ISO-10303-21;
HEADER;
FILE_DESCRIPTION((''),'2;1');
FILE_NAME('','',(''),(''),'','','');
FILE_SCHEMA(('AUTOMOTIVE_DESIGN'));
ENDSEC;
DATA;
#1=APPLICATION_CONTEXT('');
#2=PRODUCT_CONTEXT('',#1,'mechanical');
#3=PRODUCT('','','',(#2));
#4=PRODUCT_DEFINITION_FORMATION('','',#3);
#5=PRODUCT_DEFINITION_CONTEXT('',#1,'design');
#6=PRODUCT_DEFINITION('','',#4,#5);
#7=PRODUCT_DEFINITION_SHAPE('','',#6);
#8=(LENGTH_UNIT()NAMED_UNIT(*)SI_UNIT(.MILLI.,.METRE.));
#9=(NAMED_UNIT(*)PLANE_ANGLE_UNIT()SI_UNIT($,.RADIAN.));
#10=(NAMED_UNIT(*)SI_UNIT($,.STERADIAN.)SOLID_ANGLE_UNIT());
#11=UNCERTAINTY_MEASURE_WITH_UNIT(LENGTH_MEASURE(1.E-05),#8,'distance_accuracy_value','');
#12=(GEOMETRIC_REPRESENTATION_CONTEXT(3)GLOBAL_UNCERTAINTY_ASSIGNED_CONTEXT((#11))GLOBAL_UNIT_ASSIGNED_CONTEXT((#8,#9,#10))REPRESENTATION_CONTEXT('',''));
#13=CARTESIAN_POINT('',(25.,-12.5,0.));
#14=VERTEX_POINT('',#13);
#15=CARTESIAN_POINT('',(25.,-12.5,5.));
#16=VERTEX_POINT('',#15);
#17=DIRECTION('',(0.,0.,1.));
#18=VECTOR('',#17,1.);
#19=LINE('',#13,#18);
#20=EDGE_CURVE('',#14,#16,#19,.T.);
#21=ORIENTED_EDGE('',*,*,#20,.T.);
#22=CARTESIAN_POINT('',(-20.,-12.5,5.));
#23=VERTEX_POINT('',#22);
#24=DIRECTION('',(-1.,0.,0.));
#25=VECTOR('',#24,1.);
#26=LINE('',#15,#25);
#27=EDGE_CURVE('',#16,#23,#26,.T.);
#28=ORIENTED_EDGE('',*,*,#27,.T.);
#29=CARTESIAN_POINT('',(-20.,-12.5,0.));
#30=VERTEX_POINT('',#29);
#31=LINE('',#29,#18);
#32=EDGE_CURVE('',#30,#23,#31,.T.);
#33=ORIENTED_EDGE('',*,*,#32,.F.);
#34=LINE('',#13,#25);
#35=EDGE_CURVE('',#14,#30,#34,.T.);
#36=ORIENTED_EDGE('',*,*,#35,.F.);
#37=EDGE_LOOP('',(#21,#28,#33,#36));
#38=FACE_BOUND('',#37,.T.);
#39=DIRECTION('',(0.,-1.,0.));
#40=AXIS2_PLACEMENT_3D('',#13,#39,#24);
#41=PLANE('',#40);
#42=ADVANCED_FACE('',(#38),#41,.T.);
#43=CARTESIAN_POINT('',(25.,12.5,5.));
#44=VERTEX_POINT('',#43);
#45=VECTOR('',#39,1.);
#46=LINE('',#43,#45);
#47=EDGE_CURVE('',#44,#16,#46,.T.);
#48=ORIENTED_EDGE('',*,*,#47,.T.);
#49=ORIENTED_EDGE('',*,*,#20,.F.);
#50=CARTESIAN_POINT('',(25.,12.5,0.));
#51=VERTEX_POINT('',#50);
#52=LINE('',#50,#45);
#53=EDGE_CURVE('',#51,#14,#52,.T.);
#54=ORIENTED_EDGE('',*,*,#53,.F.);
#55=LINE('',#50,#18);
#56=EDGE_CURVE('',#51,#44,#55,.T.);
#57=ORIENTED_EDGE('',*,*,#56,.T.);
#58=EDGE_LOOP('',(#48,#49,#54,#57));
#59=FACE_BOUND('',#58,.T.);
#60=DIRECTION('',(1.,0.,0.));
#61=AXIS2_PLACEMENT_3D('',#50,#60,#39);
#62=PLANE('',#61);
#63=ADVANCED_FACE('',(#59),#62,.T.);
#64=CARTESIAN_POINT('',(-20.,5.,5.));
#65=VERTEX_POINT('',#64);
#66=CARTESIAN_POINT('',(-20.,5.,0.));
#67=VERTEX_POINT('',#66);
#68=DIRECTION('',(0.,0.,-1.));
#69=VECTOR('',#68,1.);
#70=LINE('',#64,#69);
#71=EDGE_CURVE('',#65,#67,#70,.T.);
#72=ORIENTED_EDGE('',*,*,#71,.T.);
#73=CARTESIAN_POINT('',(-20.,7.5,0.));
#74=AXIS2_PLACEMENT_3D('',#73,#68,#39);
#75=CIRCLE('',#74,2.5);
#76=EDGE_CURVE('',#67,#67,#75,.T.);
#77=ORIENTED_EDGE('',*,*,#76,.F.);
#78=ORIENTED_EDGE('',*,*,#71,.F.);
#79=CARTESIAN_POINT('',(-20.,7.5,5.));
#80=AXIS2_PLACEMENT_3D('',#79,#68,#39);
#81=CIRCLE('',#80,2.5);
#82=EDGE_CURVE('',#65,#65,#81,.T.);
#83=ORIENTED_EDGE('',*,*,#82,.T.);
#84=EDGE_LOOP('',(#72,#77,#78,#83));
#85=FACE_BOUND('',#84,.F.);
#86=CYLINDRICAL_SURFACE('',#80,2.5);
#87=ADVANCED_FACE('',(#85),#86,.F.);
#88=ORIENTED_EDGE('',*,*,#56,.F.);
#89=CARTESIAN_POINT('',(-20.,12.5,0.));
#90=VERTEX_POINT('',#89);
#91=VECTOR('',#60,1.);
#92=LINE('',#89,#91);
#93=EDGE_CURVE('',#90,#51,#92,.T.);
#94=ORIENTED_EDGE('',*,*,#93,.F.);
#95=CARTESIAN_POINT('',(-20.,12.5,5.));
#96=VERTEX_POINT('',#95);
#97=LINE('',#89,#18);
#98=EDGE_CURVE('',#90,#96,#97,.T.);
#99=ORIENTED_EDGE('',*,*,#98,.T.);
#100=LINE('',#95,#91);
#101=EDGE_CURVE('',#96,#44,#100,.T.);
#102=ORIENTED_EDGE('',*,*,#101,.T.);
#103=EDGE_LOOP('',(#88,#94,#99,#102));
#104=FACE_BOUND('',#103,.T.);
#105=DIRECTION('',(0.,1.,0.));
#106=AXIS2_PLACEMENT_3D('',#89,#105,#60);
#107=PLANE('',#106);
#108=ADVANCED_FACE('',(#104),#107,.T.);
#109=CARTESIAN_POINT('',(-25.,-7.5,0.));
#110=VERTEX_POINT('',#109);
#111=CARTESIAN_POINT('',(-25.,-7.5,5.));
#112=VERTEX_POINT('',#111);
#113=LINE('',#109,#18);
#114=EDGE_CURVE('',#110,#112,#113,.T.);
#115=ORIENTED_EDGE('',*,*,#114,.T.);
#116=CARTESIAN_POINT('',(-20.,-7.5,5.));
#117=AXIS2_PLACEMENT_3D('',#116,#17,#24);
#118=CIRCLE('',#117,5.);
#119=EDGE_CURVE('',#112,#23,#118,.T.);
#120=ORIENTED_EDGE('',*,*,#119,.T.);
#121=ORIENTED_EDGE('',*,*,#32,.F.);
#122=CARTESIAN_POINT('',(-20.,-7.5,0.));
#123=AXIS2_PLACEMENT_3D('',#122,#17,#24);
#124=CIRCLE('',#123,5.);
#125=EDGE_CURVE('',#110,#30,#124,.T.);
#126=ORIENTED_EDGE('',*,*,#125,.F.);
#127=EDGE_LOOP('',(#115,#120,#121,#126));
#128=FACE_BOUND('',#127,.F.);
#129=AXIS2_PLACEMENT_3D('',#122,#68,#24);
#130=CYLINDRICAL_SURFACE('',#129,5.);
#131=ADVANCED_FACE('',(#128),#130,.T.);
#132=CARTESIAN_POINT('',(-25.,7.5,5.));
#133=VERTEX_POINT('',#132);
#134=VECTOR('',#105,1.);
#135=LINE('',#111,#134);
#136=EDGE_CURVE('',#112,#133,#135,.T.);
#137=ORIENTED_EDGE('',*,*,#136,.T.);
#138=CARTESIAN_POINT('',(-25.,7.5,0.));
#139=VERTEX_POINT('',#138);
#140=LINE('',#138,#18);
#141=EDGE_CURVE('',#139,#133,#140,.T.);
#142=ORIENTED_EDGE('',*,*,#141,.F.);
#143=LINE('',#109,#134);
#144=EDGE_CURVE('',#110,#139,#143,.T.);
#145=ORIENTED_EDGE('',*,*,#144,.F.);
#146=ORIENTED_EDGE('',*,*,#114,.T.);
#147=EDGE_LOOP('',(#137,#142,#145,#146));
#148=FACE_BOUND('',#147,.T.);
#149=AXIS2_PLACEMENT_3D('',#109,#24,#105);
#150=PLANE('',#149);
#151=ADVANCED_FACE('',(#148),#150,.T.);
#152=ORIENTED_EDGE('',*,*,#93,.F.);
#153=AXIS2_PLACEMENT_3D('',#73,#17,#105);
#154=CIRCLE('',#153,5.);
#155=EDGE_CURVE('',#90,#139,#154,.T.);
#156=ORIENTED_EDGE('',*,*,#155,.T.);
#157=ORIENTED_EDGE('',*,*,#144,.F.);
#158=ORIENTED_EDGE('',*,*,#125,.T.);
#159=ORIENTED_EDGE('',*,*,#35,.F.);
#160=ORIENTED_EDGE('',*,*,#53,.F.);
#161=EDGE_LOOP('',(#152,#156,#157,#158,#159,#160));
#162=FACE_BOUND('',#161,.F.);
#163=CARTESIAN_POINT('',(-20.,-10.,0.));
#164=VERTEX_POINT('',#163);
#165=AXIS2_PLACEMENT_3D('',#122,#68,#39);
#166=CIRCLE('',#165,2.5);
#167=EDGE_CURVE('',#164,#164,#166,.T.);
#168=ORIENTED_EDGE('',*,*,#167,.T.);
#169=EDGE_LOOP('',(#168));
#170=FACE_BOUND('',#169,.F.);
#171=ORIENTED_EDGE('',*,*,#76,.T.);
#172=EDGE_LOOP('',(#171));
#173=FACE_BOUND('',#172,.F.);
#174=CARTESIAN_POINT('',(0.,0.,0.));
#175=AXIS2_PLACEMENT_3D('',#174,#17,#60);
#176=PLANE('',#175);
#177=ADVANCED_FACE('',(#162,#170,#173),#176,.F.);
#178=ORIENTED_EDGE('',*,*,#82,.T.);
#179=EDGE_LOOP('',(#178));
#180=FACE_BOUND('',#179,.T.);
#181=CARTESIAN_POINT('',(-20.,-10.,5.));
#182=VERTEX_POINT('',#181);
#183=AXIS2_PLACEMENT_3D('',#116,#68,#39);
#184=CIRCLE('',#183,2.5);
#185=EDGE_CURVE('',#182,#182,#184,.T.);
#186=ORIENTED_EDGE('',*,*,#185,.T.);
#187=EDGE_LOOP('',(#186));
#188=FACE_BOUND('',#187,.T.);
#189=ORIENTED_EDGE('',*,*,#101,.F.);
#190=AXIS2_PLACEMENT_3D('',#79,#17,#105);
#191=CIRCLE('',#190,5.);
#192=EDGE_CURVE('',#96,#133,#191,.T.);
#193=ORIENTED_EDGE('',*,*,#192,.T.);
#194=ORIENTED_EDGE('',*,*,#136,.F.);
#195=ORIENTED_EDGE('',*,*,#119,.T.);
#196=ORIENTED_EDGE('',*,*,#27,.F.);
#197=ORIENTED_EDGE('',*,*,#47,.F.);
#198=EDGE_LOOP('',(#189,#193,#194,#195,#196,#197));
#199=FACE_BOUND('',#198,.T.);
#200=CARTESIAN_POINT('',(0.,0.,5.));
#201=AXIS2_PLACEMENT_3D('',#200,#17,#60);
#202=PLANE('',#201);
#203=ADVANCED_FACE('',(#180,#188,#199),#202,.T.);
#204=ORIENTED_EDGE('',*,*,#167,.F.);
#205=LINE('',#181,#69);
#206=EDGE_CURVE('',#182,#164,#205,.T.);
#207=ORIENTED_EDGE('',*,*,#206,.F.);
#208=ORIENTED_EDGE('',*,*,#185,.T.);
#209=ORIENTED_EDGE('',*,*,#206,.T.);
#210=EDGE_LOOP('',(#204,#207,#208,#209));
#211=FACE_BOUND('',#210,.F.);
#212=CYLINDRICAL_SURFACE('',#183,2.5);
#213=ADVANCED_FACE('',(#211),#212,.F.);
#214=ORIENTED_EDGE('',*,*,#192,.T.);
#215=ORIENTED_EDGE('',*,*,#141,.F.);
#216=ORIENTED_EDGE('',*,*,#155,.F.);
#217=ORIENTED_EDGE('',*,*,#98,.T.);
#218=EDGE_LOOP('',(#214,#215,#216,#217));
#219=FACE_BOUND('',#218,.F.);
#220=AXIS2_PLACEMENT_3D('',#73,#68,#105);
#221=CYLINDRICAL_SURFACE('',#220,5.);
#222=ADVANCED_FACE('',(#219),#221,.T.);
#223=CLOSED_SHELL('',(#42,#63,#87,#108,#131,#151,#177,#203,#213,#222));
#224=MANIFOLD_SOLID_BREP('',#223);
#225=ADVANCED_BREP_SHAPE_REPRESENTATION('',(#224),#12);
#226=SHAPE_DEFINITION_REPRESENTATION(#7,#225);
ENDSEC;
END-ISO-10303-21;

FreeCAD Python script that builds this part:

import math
import FreeCAD as App
import Part
import Sketcher
from FreeCAD import Vector
Q = App.Units.Quantity

doc = App.newDocument("Part")
body = doc.addObject("PartDesign::Body", "Body")

sketch1 = body.newObject("Sketcher::SketchObject", "Sketch")
sketch1.AttachmentSupport = (doc.getObject("XY_Plane"), [""])
sketch1.MapMode = "FlatFace"
sketch1.addGeometry([
    Part.LineSegment(Vector(25, 12, 0), Vector(-20, 12, 0)),
    Part.ArcOfCircle(Part.Circle(Vector(-20, 8, 0), Vector(0, 0, 1), 5), math.radians(90), math.radians(180)),
    Part.LineSegment(Vector(-25, 8, 0), Vector(-25, -8, 0)),
    Part.ArcOfCircle(Part.Circle(Vector(-20, -8, 0), Vector(0, 0, 1), 5), math.radians(180), math.radians(270)),
    Part.LineSegment(Vector(-20, -12, 0), Vector(25, -12, 0)),
    Part.LineSegment(Vector(25, -12, 0), Vector(25, 12, 0)),
], False)
sketch1.addConstraint([
    Sketcher.Constraint("Tangent", 0, 2, 1, 1),
    Sketcher.Constraint("Tangent", 1, 2, 2, 1),
    Sketcher.Constraint("Tangent", 2, 2, 3, 1),
    Sketcher.Constraint("Tangent", 3, 2, 4, 1),
    Sketcher.Constraint("Coincident", 4, 2, 5, 1),
    Sketcher.Constraint("Coincident", 5, 2, 0, 1),
    Sketcher.Constraint("Horizontal", 0),
    Sketcher.Constraint("Vertical", 2),
    Sketcher.Constraint("Horizontal", 4),
    Sketcher.Constraint("Vertical", 5),
    Sketcher.Constraint("Equal", 1, 3),
    Sketcher.Constraint("Radius", 1, Q("5 mm")),
    Sketcher.Constraint("DistanceY", 5, 1, 5, 2, Q("25 mm")),
    Sketcher.Constraint("DistanceX", 1, 2, -1, 1, Q("25 mm")),
    Sketcher.Constraint("DistanceX", -1, 1, 4, 2, Q("25 mm")),
    Sketcher.Constraint("DistanceY", -1, 1, 0, 2, Q("12.5 mm")),
])
pad1 = body.newObject("PartDesign::Pad", "Pad")
pad1.Profile = sketch1
pad1.Length = 5

sketch2 = body.newObject("Sketcher::SketchObject", "Sketch001")
sketch2.AttachmentSupport = (doc.getObject("XY_Plane"), [""])
sketch2.MapMode = "FlatFace"
sketch2.AttachmentOffset = App.Placement(Vector(0, 0, 5), App.Rotation())
sketch2.addGeometry([
    Part.Circle(Vector(-20, 7.5, 0), Vector(0, 0, 1), 2.5),
    Part.Circle(Vector(-20, -7.5, 0), Vector(0, 0, 1), 2.5),
], False)
sketch2.addConstraint([
    Sketcher.Constraint("Equal", 0, 1),
    Sketcher.Constraint("Symmetric", 0, 3, 1, 3, -1),
    Sketcher.Constraint("Diameter", 0, Q("5 mm")),
    Sketcher.Constraint("DistanceX", 0, 3, -1, 1, Q("20 mm")),
    Sketcher.Constraint("DistanceY", 1, 3, 0, 3, Q("15 mm")),
])
doc.recompute()
hole = body.newObject("PartDesign::Hole", "Hole")
hole.Profile = sketch2
hole.ThreadType = "None"
hole.Diameter = 5
hole.DepthType = "ThroughAll"

doc.recompute()
